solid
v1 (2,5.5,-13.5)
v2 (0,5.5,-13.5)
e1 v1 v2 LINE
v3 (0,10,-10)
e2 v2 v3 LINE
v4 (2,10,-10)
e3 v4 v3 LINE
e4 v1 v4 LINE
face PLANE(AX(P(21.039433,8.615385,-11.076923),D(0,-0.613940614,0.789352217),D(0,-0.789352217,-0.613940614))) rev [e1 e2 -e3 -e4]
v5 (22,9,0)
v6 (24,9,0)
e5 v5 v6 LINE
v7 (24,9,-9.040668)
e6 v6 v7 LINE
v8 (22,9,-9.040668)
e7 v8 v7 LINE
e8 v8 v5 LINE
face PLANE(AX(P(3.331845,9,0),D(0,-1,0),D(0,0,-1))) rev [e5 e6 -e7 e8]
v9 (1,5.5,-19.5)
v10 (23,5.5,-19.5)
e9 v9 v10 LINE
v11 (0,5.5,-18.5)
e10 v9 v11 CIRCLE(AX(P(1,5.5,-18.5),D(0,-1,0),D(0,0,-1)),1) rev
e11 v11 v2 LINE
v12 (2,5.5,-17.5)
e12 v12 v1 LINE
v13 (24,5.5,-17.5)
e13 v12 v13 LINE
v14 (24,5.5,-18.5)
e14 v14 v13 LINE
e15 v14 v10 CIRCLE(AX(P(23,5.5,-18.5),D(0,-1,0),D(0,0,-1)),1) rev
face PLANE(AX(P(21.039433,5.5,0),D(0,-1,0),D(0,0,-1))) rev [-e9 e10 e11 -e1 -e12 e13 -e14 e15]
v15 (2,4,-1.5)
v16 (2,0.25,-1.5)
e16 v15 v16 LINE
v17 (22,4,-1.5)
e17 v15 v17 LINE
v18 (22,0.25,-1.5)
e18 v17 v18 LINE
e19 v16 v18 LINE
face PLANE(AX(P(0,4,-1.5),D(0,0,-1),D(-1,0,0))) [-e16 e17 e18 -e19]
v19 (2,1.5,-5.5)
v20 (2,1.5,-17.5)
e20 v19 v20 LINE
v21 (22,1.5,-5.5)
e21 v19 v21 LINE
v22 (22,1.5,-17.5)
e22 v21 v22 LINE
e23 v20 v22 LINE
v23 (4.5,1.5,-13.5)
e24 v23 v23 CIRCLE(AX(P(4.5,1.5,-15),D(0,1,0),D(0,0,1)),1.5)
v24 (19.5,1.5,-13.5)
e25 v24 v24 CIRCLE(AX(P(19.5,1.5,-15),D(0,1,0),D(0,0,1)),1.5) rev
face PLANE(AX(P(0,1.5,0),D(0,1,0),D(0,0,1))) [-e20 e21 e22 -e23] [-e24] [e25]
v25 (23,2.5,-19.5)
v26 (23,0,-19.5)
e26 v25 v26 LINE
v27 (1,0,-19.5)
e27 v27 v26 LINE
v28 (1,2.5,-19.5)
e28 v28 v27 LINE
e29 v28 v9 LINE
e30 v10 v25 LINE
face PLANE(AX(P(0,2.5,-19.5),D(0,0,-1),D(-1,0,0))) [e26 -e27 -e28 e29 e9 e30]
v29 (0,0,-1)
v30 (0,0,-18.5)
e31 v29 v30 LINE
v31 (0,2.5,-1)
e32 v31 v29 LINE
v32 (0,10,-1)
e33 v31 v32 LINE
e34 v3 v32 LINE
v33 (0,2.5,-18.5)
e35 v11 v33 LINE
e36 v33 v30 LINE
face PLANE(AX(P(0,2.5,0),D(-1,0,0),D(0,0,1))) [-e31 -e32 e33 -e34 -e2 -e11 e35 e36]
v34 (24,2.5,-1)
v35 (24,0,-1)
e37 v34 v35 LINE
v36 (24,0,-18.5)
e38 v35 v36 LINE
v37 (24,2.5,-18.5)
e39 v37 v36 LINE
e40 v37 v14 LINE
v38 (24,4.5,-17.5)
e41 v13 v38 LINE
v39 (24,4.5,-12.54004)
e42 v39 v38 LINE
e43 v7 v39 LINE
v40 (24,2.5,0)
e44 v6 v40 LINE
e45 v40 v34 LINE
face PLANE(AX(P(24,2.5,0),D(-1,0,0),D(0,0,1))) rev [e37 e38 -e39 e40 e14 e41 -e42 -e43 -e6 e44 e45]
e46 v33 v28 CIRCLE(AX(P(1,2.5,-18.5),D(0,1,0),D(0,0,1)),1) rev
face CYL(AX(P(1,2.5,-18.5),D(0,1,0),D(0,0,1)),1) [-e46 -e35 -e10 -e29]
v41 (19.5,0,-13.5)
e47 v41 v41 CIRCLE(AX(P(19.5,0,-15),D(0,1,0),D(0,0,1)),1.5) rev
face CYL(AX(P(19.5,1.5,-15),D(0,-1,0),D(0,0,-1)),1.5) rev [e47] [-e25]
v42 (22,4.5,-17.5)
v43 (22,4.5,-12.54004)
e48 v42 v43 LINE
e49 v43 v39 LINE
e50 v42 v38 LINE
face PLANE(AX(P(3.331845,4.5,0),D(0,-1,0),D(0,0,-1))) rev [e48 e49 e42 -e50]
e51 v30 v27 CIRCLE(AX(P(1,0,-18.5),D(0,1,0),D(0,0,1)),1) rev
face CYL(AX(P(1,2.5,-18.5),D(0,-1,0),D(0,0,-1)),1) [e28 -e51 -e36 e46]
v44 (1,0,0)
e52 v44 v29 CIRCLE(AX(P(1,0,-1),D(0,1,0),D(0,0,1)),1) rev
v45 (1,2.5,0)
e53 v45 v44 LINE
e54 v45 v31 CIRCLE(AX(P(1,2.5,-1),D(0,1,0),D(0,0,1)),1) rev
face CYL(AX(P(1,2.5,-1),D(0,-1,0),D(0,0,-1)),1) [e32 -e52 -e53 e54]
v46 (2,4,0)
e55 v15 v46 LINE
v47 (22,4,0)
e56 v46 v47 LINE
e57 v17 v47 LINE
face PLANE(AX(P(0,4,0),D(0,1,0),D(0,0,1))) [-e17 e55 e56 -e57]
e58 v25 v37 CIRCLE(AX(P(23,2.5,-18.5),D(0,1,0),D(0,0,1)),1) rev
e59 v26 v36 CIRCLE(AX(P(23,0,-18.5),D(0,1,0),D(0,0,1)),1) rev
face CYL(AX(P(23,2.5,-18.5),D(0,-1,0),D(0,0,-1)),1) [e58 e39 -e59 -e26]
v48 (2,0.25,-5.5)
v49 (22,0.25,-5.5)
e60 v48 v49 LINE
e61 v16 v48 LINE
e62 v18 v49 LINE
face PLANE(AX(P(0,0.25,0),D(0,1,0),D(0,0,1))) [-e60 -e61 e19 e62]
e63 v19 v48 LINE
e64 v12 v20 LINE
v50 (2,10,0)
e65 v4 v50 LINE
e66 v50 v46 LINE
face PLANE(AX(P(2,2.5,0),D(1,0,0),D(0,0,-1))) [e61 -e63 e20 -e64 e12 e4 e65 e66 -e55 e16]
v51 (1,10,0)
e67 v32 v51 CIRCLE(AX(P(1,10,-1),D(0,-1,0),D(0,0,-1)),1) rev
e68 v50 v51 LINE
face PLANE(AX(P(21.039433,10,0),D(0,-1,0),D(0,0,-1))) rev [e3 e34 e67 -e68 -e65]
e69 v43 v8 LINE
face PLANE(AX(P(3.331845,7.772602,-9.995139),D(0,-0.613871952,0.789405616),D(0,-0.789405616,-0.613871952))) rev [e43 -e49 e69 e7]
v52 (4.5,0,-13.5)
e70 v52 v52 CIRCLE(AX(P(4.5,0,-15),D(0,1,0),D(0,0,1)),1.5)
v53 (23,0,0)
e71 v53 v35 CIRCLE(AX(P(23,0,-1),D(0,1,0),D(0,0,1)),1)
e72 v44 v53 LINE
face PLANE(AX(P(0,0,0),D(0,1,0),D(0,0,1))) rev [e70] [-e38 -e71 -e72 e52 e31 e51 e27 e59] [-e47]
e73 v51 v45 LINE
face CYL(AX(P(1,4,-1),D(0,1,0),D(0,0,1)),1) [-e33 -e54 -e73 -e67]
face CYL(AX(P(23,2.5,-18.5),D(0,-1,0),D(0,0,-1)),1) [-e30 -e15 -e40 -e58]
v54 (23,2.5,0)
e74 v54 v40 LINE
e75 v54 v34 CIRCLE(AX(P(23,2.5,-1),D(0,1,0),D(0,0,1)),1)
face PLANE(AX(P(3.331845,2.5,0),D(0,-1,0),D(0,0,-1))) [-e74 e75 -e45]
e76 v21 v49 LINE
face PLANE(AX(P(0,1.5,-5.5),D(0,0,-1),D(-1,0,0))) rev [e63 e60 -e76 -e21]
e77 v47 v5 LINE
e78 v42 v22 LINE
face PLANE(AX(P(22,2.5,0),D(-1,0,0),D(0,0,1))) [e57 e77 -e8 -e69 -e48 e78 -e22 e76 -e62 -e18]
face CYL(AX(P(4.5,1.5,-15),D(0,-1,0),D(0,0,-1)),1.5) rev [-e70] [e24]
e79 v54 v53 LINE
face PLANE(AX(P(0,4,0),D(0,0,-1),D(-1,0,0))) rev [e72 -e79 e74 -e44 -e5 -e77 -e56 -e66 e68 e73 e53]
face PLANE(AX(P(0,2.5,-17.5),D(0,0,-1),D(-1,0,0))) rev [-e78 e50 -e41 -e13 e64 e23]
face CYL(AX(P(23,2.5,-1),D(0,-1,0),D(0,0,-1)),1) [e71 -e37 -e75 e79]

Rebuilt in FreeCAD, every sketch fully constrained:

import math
import FreeCAD as App
import Part
import Sketcher
Q = App.Units.Quantity


def edges_at(feature, points):
    """Names of the edges that pass closest to the given points."""
    edges = feature.Shape.Edges
    near = lambda p: min(range(len(edges)), key=lambda i: edges[i].distToShape(Part.Vertex(*p))[0])
    return sorted({f"Edge{near(p) + 1}" for p in points})

doc = App.newDocument("Part")
params = doc.addObject("Spreadsheet::Sheet", "Params")
for row, (alias, value) in enumerate([
    ("sketch1_diameter", "3 mm"),
    ("sketch1_width", "20 mm"),
    ("sketch1_height", "12 mm"),
    ("pad1_length", "1.5 mm"),
    ("sketch2_width", "20 mm"),
    ("sketch2_height", "4 mm"),
    ("pad2_length", "0.25 mm"),
    ("sketch3_width", "20 mm"),
    ("sketch3_height", "1.5 mm"),
    ("pad3_length", "4 mm"),
    ("sketch4_radius", "1 mm"),
    ("sketch4_width", "1 mm"),
    ("sketch4_width2", "20 mm"),
    ("sketch4_height", "17.5 mm"),
    ("pad4_length", "2.5 mm"),
    ("sketch5_width", "3 mm"),
    ("sketch5_height", "4 mm"),
    ("sketch5_height2", "10 mm"),
    ("sketch5_width2", "7.5 mm"),
    ("sketch5_height3", "17.5 mm"),
    ("pad5_length", "2 mm"),
    ("sketch6_width", "3 mm"),
    ("sketch6_height", "2 mm"),
    ("pad6_length", "24 mm"),
    ("fillet_radius", "1 mm"),
    ("fillet2_radius", "1 mm"),
    ("sketch7_width", "2 mm"),
    ("sketch7_width2", "6.5 mm"),
    ("sketch7_height", "17.5 mm"),
    ("pad7_length", "2 mm"),
], start=1):
    params.set(f"A{row}", alias)
    params.set(f"B{row}", "=" + value)
    params.setAlias(f"B{row}", alias)

body = doc.addObject("PartDesign::Body", "Body")

sketch1 = body.newObject("Sketcher::SketchObject", "Sketch")
sketch1.AttachmentSupport = (doc.getObject("XZ_Plane"), [""])
sketch1.MapMode = "FlatFace"
sketch1.addGeometry(Part.LineSegment(App.Vector(2, -17.5, 0), App.Vector(2, -5.5, 0)), False)
sketch1.addGeometry(Part.LineSegment(App.Vector(2, -5.5, 0), App.Vector(22, -5.5, 0)), False)
sketch1.addGeometry(Part.LineSegment(App.Vector(22, -5.5, 0), App.Vector(22, -17.5, 0)), False)
sketch1.addGeometry(Part.LineSegment(App.Vector(22, -17.5, 0), App.Vector(2, -17.5, 0)), False)
sketch1.addGeometry(Part.Circle(App.Vector(4.5, -15, 0), App.Vector(0, 0, 1), 1.5), False)
sketch1.addGeometry(Part.Circle(App.Vector(19.5, -15, 0), App.Vector(0, 0, 1), 1.5), False)
sketch1.addConstraint(Sketcher.Constraint("Coincident", 0, 2, 1, 1))
sketch1.addConstraint(Sketcher.Constraint("Coincident", 1, 2, 2, 1))
sketch1.addConstraint(Sketcher.Constraint("Coincident", 2, 2, 3, 1))
sketch1.addConstraint(Sketcher.Constraint("Coincident", 3, 2, 0, 1))
sketch1.addConstraint(Sketcher.Constraint("Vertical", 0))
sketch1.addConstraint(Sketcher.Constraint("Horizontal", 1))
sketch1.addConstraint(Sketcher.Constraint("Vertical", 2))
sketch1.addConstraint(Sketcher.Constraint("Horizontal", 3))
sketch1.addConstraint(Sketcher.Constraint("Equal", 4, 5))
sketch1.addConstraint(Sketcher.Constraint("Horizontal", 4, 3, 5, 3))
sketch1.addConstraint(Sketcher.Constraint("Diameter", 4, 3.0))
sketch1.addConstraint(Sketcher.Constraint("DistanceX", 1, 1, 1, 2, 20.0))
sketch1.addConstraint(Sketcher.Constraint("DistanceY", 0, 1, 0, 2, 12.0))
sketch1.addConstraint(Sketcher.Constraint("DistanceY", 4, 3, -1, 1, 15.0))
sketch1.addConstraint(Sketcher.Constraint("DistanceX", -1, 1, 0, 2, 2.0))
sketch1.addConstraint(Sketcher.Constraint("DistanceX", 4, 3, 5, 3, 15.0))
sketch1.addConstraint(Sketcher.Constraint("DistanceX", -1, 1, 4, 3, 4.5))
sketch1.addConstraint(Sketcher.Constraint("DistanceY", 0, 2, -1, 1, 5.5))
sketch1.setExpression("Constraints[10]", "Params.sketch1_diameter")
sketch1.setExpression("Constraints[11]", "Params.sketch1_width")
sketch1.setExpression("Constraints[12]", "Params.sketch1_height")
pad1 = body.newObject("PartDesign::Pad", "Pad")
pad1.Profile = sketch1
pad1.setExpression("Length", "Params.pad1_length")
pad1.Reversed = True

sketch2 = body.newObject("Sketcher::SketchObject", "Sketch001")
sketch2.AttachmentSupport = (doc.getObject("XZ_Plane"), [""])
sketch2.MapMode = "FlatFace"
sketch2.addGeometry(Part.LineSegment(App.Vector(22, -1.5, 0), App.Vector(22, -5.5, 0)), False)
sketch2.addGeometry(Part.LineSegment(App.Vector(22, -5.5, 0), App.Vector(2, -5.5, 0)), False)
sketch2.addGeometry(Part.LineSegment(App.Vector(2, -5.5, 0), App.Vector(2, -1.5, 0)), False)
sketch2.addGeometry(Part.LineSegment(App.Vector(2, -1.5, 0), App.Vector(22, -1.5, 0)), False)
sketch2.addConstraint(Sketcher.Constraint("Coincident", 0, 2, 1, 1))
sketch2.addConstraint(Sketcher.Constraint("Coincident", 1, 2, 2, 1))
sketch2.addConstraint(Sketcher.Constraint("Coincident", 2, 2, 3, 1))
sketch2.addConstraint(Sketcher.Constraint("Coincident", 3, 2, 0, 1))
sketch2.addConstraint(Sketcher.Constraint("Vertical", 0))
sketch2.addConstraint(Sketcher.Constraint("Horizontal", 1))
sketch2.addConstraint(Sketcher.Constraint("Vertical", 2))
sketch2.addConstraint(Sketcher.Constraint("Horizontal", 3))
sketch2.addConstraint(Sketcher.Constraint("DistanceX", 1, 2, 1, 1, 20.0))
sketch2.addConstraint(Sketcher.Constraint("DistanceY", 0, 2, 0, 1, 4.0))
sketch2.addConstraint(Sketcher.Constraint("DistanceX", -1, 1, 0, 2, 22.0))
sketch2.addConstraint(Sketcher.Constraint("DistanceY", 0, 2, -1, 1, 5.5))
sketch2.setExpression("Constraints[8]", "Params.sketch2_width")
sketch2.setExpression("Constraints[9]", "Params.sketch2_height")
pad2 = body.newObject("PartDesign::Pad", "Pad001")
pad2.Profile = sketch2
pad2.setExpression("Length", "Params.pad2_length")
pad2.Reversed = True
body2 = doc.addObject("PartDesign::Body", "Body001")

sketch3 = body2.newObject("Sketcher::SketchObject", "Sketch002")
sketch3.AttachmentSupport = (doc.getObject("XZ_Plane001"), [""])
sketch3.MapMode = "FlatFace"
sketch3.addGeometry(Part.LineSegment(App.Vector(2, -1.5, 0), App.Vector(2, 0, 0)), False)
sketch3.addGeometry(Part.LineSegment(App.Vector(2, 0, 0), App.Vector(22, 0, 0)), False)
sketch3.addGeometry(Part.LineSegment(App.Vector(22, 0, 0), App.Vector(22, -1.5, 0)), False)
sketch3.addGeometry(Part.LineSegment(App.Vector(22, -1.5, 0), App.Vector(2, -1.5, 0)), False)
sketch3.addConstraint(Sketcher.Constraint("Coincident", 0, 2, 1, 1))
sketch3.addConstraint(Sketcher.Constraint("Coincident", 1, 2, 2, 1))
sketch3.addConstraint(Sketcher.Constraint("Coincident", 2, 2, 3, 1))
sketch3.addConstraint(Sketcher.Constraint("Coincident", 3, 2, 0, 1))
sketch3.addConstraint(Sketcher.Constraint("Vertical", 0))
sketch3.addConstraint(Sketcher.Constraint("Horizontal", 1))
sketch3.addConstraint(Sketcher.Constraint("Vertical", 2))
sketch3.addConstraint(Sketcher.Constraint("Horizontal", 3))
sketch3.addConstraint(Sketcher.Constraint("PointOnObject", 0, 2, -1))
sketch3.addConstraint(Sketcher.Constraint("DistanceX", 1, 1, 1, 2, 20.0))
sketch3.addConstraint(Sketcher.Constraint("DistanceY", 0, 1, 0, 2, 1.5))
sketch3.addConstraint(Sketcher.Constraint("DistanceX", -1, 1, 0, 2, 2.0))
sketch3.setExpression("Constraints[9]", "Params.sketch3_width")
sketch3.setExpression("Constraints[10]", "Params.sketch3_height")
pad3 = body2.newObject("PartDesign::Pad", "Pad002")
pad3.Profile = sketch3
pad3.setExpression("Length", "Params.pad3_length")
pad3.Reversed = True
doc.recompute()

boolean = body.newObject("PartDesign::Boolean", "Boolean")
boolean.Type = "Fuse"
boolean.addObjects([body2])

sketch4 = body.newObject("Sketcher::SketchObject", "Sketch003")
sketch4.AttachmentSupport = (doc.getObject("XZ_Plane"), [""])
sketch4.MapMode = "FlatFace"
sketch4.addGeometry(Part.ArcOfCircle(Part.Circle(App.Vector(1, -1, 0), App.Vector(0, 0, 1), 1), math.radians(90), math.radians(180)), False)
sketch4.addGeometry(Part.LineSegment(App.Vector(1, 0, 0), App.Vector(2, 0, 0)), False)
sketch4.addGeometry(Part.LineSegment(App.Vector(2, 0, 0), App.Vector(2, -17.5, 0)), False)
sketch4.addGeometry(Part.LineSegment(App.Vector(2, -17.5, 0), App.Vector(22, -17.5, 0)), False)
sketch4.addGeometry(Part.LineSegment(App.Vector(22, -17.5, 0), App.Vector(22, 0, 0)), False)
sketch4.addGeometry(Part.LineSegment(App.Vector(22, 0, 0), App.Vector(23, 0, 0)), False)
sketch4.addGeometry(Part.ArcOfCircle(Part.Circle(App.Vector(23, -1, 0), App.Vector(0, 0, 1), 1), math.radians(0), math.radians(90)), False)
sketch4.addGeometry(Part.LineSegment(App.Vector(24, -1, 0), App.Vector(24, -18.5, 0)), False)
sketch4.addGeometry(Part.ArcOfCircle(Part.Circle(App.Vector(23, -18.5, 0), App.Vector(0, 0, 1), 1), math.radians(-90), math.radians(0)), False)
sketch4.addGeometry(Part.LineSegment(App.Vector(23, -19.5, 0), App.Vector(1, -19.5, 0)), False)
sketch4.addGeometry(Part.ArcOfCircle(Part.Circle(App.Vector(1, -18.5, 0), App.Vector(0, 0, 1), 1), math.radians(-180), math.radians(-90)), False)
sketch4.addGeometry(Part.LineSegment(App.Vector(0, -18.5, 0), App.Vector(0, -1, 0)), False)
sketch4.addConstraint(Sketcher.Constraint("Tangent", 0, 1, 1, 1))
sketch4.addConstraint(Sketcher.Constraint("Coincident", 1, 2, 2, 1))
sketch4.addConstraint(Sketcher.Constraint("Coincident", 2, 2, 3, 1))
sketch4.addConstraint(Sketcher.Constraint("Coincident", 3, 2, 4, 1))
sketch4.addConstraint(Sketcher.Constraint("Coincident", 4, 2, 5, 1))
sketch4.addConstraint(Sketcher.Constraint("Tangent", 5, 2, 6, 2))
sketch4.addConstraint(Sketcher.Constraint("Tangent", 6, 1, 7, 1))
sketch4.addConstraint(Sketcher.Constraint("Tangent", 7, 2, 8, 2))
sketch4.addConstraint(Sketcher.Constraint("Tangent", 8, 1, 9, 1))
sketch4.addConstraint(Sketcher.Constraint("Tangent", 9, 2, 10, 2))
sketch4.addConstraint(Sketcher.Constraint("Tangent", 10, 1, 11, 1))
sketch4.addConstraint(Sketcher.Constraint("Tangent", 11, 2, 0, 2))
sketch4.addConstraint(Sketcher.Constraint("Horizontal", 1))
sketch4.addConstraint(Sketcher.Constraint("Vertical", 2))
sketch4.addConstraint(Sketcher.Constraint("Horizontal", 3))
sketch4.addConstraint(Sketcher.Constraint("Vertical", 4))
sketch4.addConstraint(Sketcher.Constraint("Horizontal", 5))
sketch4.addConstraint(Sketcher.Constraint("Vertical", 7))
sketch4.addConstraint(Sketcher.Constraint("Horizontal", 9))
sketch4.addConstraint(Sketcher.Constraint("Vertical", 11))
sketch4.addConstraint(Sketcher.Constraint("Equal", 0, 6))
sketch4.addConstraint(Sketcher.Constraint("Equal", 6, 8))
sketch4.addConstraint(Sketcher.Constraint("Equal", 8, 10))
sketch4.addConstraint(Sketcher.Constraint("PointOnObject", 0, 1, -1))
sketch4.addConstraint(Sketcher.Constraint("PointOnObject", 4, 2, -1))
sketch4.addConstraint(Sketcher.Constraint("PointOnObject", 10, 1, -2))
sketch4.addConstraint(Sketcher.Constraint("Equal", 1, 5))
sketch4.addConstraint(Sketcher.Constraint("Equal", 4, 7))
sketch4.addConstraint(Sketcher.Constraint("Radius", 0, 1.0))
sketch4.addConstraint(Sketcher.Constraint("DistanceX", 1, 1, 1, 2, 1.0))
sketch4.addConstraint(Sketcher.Constraint("DistanceX", 3, 1, 3, 2, 20.0))
sketch4.addConstraint(Sketcher.Constraint("DistanceY", 2, 2, 2, 1, 17.5))
sketch4.setExpression("Constraints[28]", "Params.sketch4_radius")
sketch4.setExpression("Constraints[29]", "Params.sketch4_width")
sketch4.setExpression("Constraints[30]", "Params.sketch4_width2")
sketch4.setExpression("Constraints[31]", "Params.sketch4_height")
pad4 = body.newObject("PartDesign::Pad", "Pad003")
pad4.Profile = sketch4
pad4.setExpression("Length", "Params.pad4_length")
pad4.Reversed = True

sketch5 = body.newObject("Sketcher::SketchObject", "Sketch004")
sketch5.AttachmentSupport = (doc.getObject("YZ_Plane"), [""])
sketch5.MapMode = "FlatFace"
sketch5.addGeometry(Part.LineSegment(App.Vector(2.5, 0, 0), App.Vector(2.5, -17.5, 0)), False)
sketch5.addGeometry(Part.LineSegment(App.Vector(2.5, -17.5, 0), App.Vector(5.5, -17.5, 0)), False)
sketch5.addGeometry(Part.LineSegment(App.Vector(5.5, -17.5, 0), App.Vector(5.5, -13.5, 0)), False)
sketch5.addGeometry(Part.LineSegment(App.Vector(5.5, -13.5, 0), App.Vector(10, -10, 0)), False)
sketch5.addGeometry(Part.LineSegment(App.Vector(10, -10, 0), App.Vector(10, 0, 0)), False)
sketch5.addGeometry(Part.LineSegment(App.Vector(10, 0, 0), App.Vector(2.5, 0, 0)), False)
sketch5.addConstraint(Sketcher.Constraint("Coincident", 0, 2, 1, 1))
sketch5.addConstraint(Sketcher.Constraint("Coincident", 1, 2, 2, 1))
sketch5.addConstraint(Sketcher.Constraint("Coincident", 2, 2, 3, 1))
sketch5.addConstraint(Sketcher.Constraint("Coincident", 3, 2, 4, 1))
sketch5.addConstraint(Sketcher.Constraint("Coincident", 4, 2, 5, 1))
sketch5.addConstraint(Sketcher.Constraint("Coincident", 5, 2, 0, 1))
sketch5.addConstraint(Sketcher.Constraint("Vertical", 0))
sketch5.addConstraint(Sketcher.Constraint("Horizontal", 1))
sketch5.addConstraint(Sketcher.Constraint("Vertical", 2))
sketch5.addConstraint(Sketcher.Constraint("Vertical", 4))
sketch5.addConstraint(Sketcher.Constraint("Horizontal", 5))
sketch5.addConstraint(Sketcher.Constraint("PointOnObject", 4, 2, -1))
sketch5.addConstraint(Sketcher.Constraint("DistanceX", 1, 1, 1, 2, 3.0))
sketch5.addConstraint(Sketcher.Constraint("DistanceY", 2, 1, 2, 2, 4.0))
sketch5.addConstraint(Sketcher.Constraint("DistanceY", 4, 1, 4, 2, 10.0))
sketch5.addConstraint(Sketcher.Constraint("DistanceX", 5, 2, 5, 1, 7.5))
sketch5.addConstraint(Sketcher.Constraint("DistanceY", 0, 2, 0, 1, 17.5))
sketch5.addConstraint(Sketcher.Constraint("DistanceX", -1, 1, 3, 2, 10.0))
sketch5.setExpression("Constraints[12]", "Params.sketch5_width")
sketch5.setExpression("Constraints[13]", "Params.sketch5_height")
sketch5.setExpression("Constraints[14]", "Params.sketch5_height2")
sketch5.setExpression("Constraints[15]", "Params.sketch5_width2")
sketch5.setExpression("Constraints[16]", "Params.sketch5_height3")
pad5 = body.newObject("PartDesign::Pad", "Pad004")
pad5.Profile = sketch5
pad5.setExpression("Length", "Params.pad5_length")

sketch6 = body.newObject("Sketcher::SketchObject", "Sketch005")
sketch6.AttachmentSupport = (doc.getObject("YZ_Plane"), [""])
sketch6.MapMode = "FlatFace"
sketch6.AttachmentOffset = App.Placement(App.Vector(0, 0, 24), App.Rotation())
sketch6.addGeometry(Part.LineSegment(App.Vector(2.5, -19.5, 0), App.Vector(5.5, -19.5, 0)), False)
sketch6.addGeometry(Part.LineSegment(App.Vector(5.5, -19.5, 0), App.Vector(5.5, -17.5, 0)), False)
sketch6.addGeometry(Part.LineSegment(App.Vector(5.5, -17.5, 0), App.Vector(2.5, -17.5, 0)), False)
sketch6.addGeometry(Part.LineSegment(App.Vector(2.5, -17.5, 0), App.Vector(2.5, -19.5, 0)), False)
sketch6.addConstraint(Sketcher.Constraint("Coincident", 0, 2, 1, 1))
sketch6.addConstraint(Sketcher.Constraint("Coincident", 1, 2, 2, 1))
sketch6.addConstraint(Sketcher.Constraint("Coincident", 2, 2, 3, 1))
sketch6.addConstraint(Sketcher.Constraint("Coincident", 3, 2, 0, 1))
sketch6.addConstraint(Sketcher.Constraint("Horizontal", 0))
sketch6.addConstraint(Sketcher.Constraint("Vertical", 1))
sketch6.addConstraint(Sketcher.Constraint("Horizontal", 2))
sketch6.addConstraint(Sketcher.Constraint("Vertical", 3))
sketch6.addConstraint(Sketcher.Constraint("DistanceX", 0, 1, 0, 2, 3.0))
sketch6.addConstraint(Sketcher.Constraint("DistanceY", 1, 1, 1, 2, 2.0))
sketch6.addConstraint(Sketcher.Constraint("DistanceX", -1, 1, 0, 2, 5.5))
sketch6.addConstraint(Sketcher.Constraint("DistanceY", 0, 2, -1, 1, 19.5))
sketch6.setExpression("Constraints[8]", "Params.sketch6_width")
sketch6.setExpression("Constraints[9]", "Params.sketch6_height")
pad6 = body.newObject("PartDesign::Pad", "Pad005")
pad6.Profile = sketch6
pad6.setExpression("Length", "Params.pad6_length")
pad6.Reversed = True
doc.recompute()

fillet = body.newObject("PartDesign::Fillet", "Fillet")
fillet.Base = (pad6, edges_at(pad6, [(24, 4, -19.5), (0, 4, -19.5)]))
fillet.setExpression("Radius", "Params.fillet_radius")
doc.recompute()

fillet2 = body.newObject("PartDesign::Fillet", "Fillet001")
fillet2.Base = (fillet, edges_at(fillet, [(0, 6.25, 0)]))
fillet2.setExpression("Radius", "Params.fillet2_radius")

sketch7 = body.newObject("Sketcher::SketchObject", "Sketch006")
sketch7.AttachmentSupport = (doc.getObject("YZ_Plane"), [""])
sketch7.MapMode = "FlatFace"
sketch7.AttachmentOffset = App.Placement(App.Vector(0, 0, 24), App.Rotation())
sketch7.addGeometry(Part.LineSegment(App.Vector(2.5, 0, 0), App.Vector(2.5, -17.5, 0)), False)
sketch7.addGeometry(Part.LineSegment(App.Vector(2.5, -17.5, 0), App.Vector(4.5, -17.5, 0)), False)
sketch7.addGeometry(Part.LineSegment(App.Vector(4.5, -17.5, 0), App.Vector(4.5, -12.54004, 0)), False)
sketch7.addGeometry(Part.LineSegment(App.Vector(4.5, -12.54004, 0), App.Vector(9, -9.040668, 0)), False)
sketch7.addGeometry(Part.LineSegment(App.Vector(9, -9.040668, 0), App.Vector(9, 0, 0)), False)
sketch7.addGeometry(Part.LineSegment(App.Vector(9, 0, 0), App.Vector(2.5, 0, 0)), False)
sketch7.addConstraint(Sketcher.Constraint("Coincident", 0, 2, 1, 1))
sketch7.addConstraint(Sketcher.Constraint("Coincident", 1, 2, 2, 1))
sketch7.addConstraint(Sketcher.Constraint("Coincident", 2, 2, 3, 1))
sketch7.addConstraint(Sketcher.Constraint("Coincident", 3, 2, 4, 1))
sketch7.addConstraint(Sketcher.Constraint("Coincident", 4, 2, 5, 1))
sketch7.addConstraint(Sketcher.Constraint("Coincident", 5, 2, 0, 1))
sketch7.addConstraint(Sketcher.Constraint("Vertical", 0))
sketch7.addConstraint(Sketcher.Constraint("Horizontal", 1))
sketch7.addConstraint(Sketcher.Constraint("Vertical", 2))
sketch7.addConstraint(Sketcher.Constraint("Vertical", 4))
sketch7.addConstraint(Sketcher.Constraint("Horizontal", 5))
sketch7.addConstraint(Sketcher.Constraint("PointOnObject", 4, 2, -1))
sketch7.addConstraint(Sketcher.Constraint("DistanceX", 1, 1, 1, 2, 2.0))
sketch7.addConstraint(Sketcher.Constraint("DistanceX", 5, 2, 5, 1, 6.5))
sketch7.addConstraint(Sketcher.Constraint("DistanceY", 0, 2, 0, 1, 17.5))
sketch7.addConstraint(Sketcher.Constraint("DistanceX", -1, 1, 3, 2, 9.0))
sketch7.addConstraint(Sketcher.Constraint("Angle", 3, Q("37.87 deg")))
sketch7.addConstraint(Sketcher.Constraint("DistanceY", 2, 1, 2, 2, 4.95996))
sketch7.setExpression("Constraints[12]", "Params.sketch7_width")
sketch7.setExpression("Constraints[13]", "Params.sketch7_width2")
sketch7.setExpression("Constraints[14]", "Params.sketch7_height")
pad7 = body.newObject("PartDesign::Pad", "Pad006")
pad7.Profile = sketch7
pad7.setExpression("Length", "Params.pad7_length")
pad7.Reversed = True

doc.recompute()
